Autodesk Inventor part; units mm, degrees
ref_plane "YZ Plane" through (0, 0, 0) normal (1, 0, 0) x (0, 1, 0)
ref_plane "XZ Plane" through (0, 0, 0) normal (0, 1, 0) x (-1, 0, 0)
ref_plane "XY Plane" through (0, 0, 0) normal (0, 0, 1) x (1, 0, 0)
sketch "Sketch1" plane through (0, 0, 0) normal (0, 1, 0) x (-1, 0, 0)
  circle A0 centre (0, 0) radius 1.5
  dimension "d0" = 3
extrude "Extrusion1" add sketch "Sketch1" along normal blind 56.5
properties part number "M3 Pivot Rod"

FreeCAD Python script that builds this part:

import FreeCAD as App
import Part
import Sketcher

doc = App.newDocument("Part")
body = doc.addObject("PartDesign::Body", "Body")

sketch1 = body.newObject("Sketcher::SketchObject", "Sketch")
sketch1.AttachmentSupport = (doc.getObject("XZ_Plane"), [""])
sketch1.MapMode = "FlatFace"
sketch1.addGeometry(Part.Circle(App.Vector(0, 0, 0), App.Vector(0, 0, 1), 1.5), False)
sketch1.addConstraint([
    Sketcher.Constraint("Coincident", 0, 3, -1, 1),
    Sketcher.Constraint("Diameter", 0, 3.0),
])
pad1 = body.newObject("PartDesign::Pad", "Pad")
pad1.Profile = sketch1
pad1.Length = 56.5
pad1.Reversed = True

doc.recompute()
